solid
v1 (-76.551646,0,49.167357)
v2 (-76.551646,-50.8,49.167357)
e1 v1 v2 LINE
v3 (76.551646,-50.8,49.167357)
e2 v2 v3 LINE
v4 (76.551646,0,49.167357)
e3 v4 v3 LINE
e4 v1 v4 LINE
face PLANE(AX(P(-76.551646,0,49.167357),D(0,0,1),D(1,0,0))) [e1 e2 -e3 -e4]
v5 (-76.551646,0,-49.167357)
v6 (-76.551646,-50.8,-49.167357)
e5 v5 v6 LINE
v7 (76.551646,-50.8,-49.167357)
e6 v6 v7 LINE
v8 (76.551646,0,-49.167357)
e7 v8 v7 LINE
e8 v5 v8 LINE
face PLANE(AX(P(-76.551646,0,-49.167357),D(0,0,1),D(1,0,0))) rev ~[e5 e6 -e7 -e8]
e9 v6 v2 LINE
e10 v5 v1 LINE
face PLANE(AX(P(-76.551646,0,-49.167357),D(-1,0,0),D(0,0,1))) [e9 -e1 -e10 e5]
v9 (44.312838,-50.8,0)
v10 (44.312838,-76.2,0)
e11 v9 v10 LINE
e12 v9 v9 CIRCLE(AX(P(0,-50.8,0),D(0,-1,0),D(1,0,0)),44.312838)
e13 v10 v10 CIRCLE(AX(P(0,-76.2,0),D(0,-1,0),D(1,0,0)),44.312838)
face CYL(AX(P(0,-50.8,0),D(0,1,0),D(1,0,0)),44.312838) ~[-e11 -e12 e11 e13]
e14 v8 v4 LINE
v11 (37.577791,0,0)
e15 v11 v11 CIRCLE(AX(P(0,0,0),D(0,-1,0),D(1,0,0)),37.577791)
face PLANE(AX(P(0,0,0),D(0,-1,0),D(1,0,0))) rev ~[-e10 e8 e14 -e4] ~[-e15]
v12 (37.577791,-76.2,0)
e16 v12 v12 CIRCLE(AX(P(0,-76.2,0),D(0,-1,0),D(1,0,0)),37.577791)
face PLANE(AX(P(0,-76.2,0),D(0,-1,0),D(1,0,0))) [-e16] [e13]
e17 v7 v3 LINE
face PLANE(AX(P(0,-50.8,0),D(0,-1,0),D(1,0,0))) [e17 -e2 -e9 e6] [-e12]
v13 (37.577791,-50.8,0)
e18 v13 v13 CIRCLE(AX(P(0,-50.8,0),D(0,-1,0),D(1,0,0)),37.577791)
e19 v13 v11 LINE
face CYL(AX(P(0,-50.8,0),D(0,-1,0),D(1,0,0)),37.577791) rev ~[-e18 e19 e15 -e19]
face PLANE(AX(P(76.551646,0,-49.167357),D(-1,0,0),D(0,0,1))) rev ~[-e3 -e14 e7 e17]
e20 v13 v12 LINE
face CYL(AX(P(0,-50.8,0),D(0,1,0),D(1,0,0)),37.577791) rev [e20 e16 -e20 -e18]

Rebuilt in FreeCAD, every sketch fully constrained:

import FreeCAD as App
import Part
import Sketcher
from FreeCAD import Vector
Q = App.Units.Quantity


def add_polygon(sketch, points):
    """Adds a closed chain of lines whose ends are joined by coincident constraints."""
    first, n = sketch.GeometryCount, len(points)
    for a, b in zip(points, points[1:] + points[:1]):
        sketch.addGeometry(Part.LineSegment(App.Vector(*a, 0), App.Vector(*b, 0)), False)
    for i in range(n):
        sketch.addConstraint(Sketcher.Constraint("Coincident", first + i, 2, first + (i + 1) % n, 1))

doc = App.newDocument("Part")
params = doc.addObject("Spreadsheet::Sheet", "Params")
for row, (alias, value) in enumerate([
    ("pad1_length", "2 in"),
    ("pad2_length", "1 in"),
    ("pocket1_length", "3 in"),
], start=1):
    params.set(f"A{row}", alias)
    params.set(f"B{row}", "=" + value)
    params.setAlias(f"B{row}", alias)

body = doc.addObject("PartDesign::Body", "Body")

sketch1 = body.newObject("Sketcher::SketchObject", "Sketch")
sketch1.AttachmentSupport = (doc.getObject("XZ_Plane"), [""])
sketch1.MapMode = "FlatFace"
add_polygon(sketch1, [(-76.551646, 49.167357), (-76.551646, -49.167357), (76.551646, -49.167357), (76.551646, 49.167357)])
sketch1.addConstraint([
    Sketcher.Constraint("Vertical", 0),
    Sketcher.Constraint("Horizontal", 1),
    Sketcher.Constraint("Vertical", 2),
    Sketcher.Constraint("Horizontal", 3),
    Sketcher.Constraint("Symmetric", 0, 2, 2, 2, -1, 1),
    Sketcher.Constraint("DistanceX", 1, 1, 1, 2, 153.103292),
    Sketcher.Constraint("DistanceY", 0, 2, 0, 1, 98.334714),
])
pad1 = body.newObject("PartDesign::Pad", "Pad")
pad1.Profile = sketch1
pad1.setExpression("Length", "Params.pad1_length")

sketch2 = body.newObject("Sketcher::SketchObject", "Sketch001")
sketch2.AttachmentSupport = (doc.getObject("XZ_Plane"), [""])
sketch2.MapMode = "FlatFace"
sketch2.AttachmentOffset = App.Placement(Vector(0, 0, 2 * 25.4), App.Rotation())
sketch2.addGeometry([
    Part.Circle(Vector(0, 0, 0), Vector(0, 0, 1), 44.312838),
    Part.Circle(Vector(0, 0, 0), Vector(0, 0, 1), 37.577791),
], False)
sketch2.addConstraint([
    Sketcher.Constraint("Coincident", 0, 3, -1, 1),
    Sketcher.Constraint("Coincident", 1, 3, -1, 1),
    Sketcher.Constraint("Diameter", 0, Q("3.4891998 in")),
    Sketcher.Constraint("Diameter", 1, 75.155582),
])
pad2 = body.newObject("PartDesign::Pad", "Pad001")
pad2.Profile = sketch2
pad2.setExpression("Length", "Params.pad2_length")

sketch3 = body.newObject("Sketcher::SketchObject", "Sketch002")
sketch3.AttachmentSupport = (doc.getObject("XZ_Plane"), [""])
sketch3.MapMode = "FlatFace"
sketch3.AttachmentOffset = App.Placement(Vector(0, 0, 2 * 25.4), App.Rotation())
sketch3.addGeometry(Part.Circle(Vector(0, 0, 0), Vector(0, 0, 1), 37.577791), False)
sketch3.addConstraint([
    Sketcher.Constraint("Coincident", 0, 3, -1, 1),
    Sketcher.Constraint("Diameter", 0, 75.155582),
])
pocket1 = body.newObject("PartDesign::Pocket", "Pocket")
pocket1.Profile = sketch3
pocket1.setExpression("Length", "Params.pocket1_length")

doc.recompute()
